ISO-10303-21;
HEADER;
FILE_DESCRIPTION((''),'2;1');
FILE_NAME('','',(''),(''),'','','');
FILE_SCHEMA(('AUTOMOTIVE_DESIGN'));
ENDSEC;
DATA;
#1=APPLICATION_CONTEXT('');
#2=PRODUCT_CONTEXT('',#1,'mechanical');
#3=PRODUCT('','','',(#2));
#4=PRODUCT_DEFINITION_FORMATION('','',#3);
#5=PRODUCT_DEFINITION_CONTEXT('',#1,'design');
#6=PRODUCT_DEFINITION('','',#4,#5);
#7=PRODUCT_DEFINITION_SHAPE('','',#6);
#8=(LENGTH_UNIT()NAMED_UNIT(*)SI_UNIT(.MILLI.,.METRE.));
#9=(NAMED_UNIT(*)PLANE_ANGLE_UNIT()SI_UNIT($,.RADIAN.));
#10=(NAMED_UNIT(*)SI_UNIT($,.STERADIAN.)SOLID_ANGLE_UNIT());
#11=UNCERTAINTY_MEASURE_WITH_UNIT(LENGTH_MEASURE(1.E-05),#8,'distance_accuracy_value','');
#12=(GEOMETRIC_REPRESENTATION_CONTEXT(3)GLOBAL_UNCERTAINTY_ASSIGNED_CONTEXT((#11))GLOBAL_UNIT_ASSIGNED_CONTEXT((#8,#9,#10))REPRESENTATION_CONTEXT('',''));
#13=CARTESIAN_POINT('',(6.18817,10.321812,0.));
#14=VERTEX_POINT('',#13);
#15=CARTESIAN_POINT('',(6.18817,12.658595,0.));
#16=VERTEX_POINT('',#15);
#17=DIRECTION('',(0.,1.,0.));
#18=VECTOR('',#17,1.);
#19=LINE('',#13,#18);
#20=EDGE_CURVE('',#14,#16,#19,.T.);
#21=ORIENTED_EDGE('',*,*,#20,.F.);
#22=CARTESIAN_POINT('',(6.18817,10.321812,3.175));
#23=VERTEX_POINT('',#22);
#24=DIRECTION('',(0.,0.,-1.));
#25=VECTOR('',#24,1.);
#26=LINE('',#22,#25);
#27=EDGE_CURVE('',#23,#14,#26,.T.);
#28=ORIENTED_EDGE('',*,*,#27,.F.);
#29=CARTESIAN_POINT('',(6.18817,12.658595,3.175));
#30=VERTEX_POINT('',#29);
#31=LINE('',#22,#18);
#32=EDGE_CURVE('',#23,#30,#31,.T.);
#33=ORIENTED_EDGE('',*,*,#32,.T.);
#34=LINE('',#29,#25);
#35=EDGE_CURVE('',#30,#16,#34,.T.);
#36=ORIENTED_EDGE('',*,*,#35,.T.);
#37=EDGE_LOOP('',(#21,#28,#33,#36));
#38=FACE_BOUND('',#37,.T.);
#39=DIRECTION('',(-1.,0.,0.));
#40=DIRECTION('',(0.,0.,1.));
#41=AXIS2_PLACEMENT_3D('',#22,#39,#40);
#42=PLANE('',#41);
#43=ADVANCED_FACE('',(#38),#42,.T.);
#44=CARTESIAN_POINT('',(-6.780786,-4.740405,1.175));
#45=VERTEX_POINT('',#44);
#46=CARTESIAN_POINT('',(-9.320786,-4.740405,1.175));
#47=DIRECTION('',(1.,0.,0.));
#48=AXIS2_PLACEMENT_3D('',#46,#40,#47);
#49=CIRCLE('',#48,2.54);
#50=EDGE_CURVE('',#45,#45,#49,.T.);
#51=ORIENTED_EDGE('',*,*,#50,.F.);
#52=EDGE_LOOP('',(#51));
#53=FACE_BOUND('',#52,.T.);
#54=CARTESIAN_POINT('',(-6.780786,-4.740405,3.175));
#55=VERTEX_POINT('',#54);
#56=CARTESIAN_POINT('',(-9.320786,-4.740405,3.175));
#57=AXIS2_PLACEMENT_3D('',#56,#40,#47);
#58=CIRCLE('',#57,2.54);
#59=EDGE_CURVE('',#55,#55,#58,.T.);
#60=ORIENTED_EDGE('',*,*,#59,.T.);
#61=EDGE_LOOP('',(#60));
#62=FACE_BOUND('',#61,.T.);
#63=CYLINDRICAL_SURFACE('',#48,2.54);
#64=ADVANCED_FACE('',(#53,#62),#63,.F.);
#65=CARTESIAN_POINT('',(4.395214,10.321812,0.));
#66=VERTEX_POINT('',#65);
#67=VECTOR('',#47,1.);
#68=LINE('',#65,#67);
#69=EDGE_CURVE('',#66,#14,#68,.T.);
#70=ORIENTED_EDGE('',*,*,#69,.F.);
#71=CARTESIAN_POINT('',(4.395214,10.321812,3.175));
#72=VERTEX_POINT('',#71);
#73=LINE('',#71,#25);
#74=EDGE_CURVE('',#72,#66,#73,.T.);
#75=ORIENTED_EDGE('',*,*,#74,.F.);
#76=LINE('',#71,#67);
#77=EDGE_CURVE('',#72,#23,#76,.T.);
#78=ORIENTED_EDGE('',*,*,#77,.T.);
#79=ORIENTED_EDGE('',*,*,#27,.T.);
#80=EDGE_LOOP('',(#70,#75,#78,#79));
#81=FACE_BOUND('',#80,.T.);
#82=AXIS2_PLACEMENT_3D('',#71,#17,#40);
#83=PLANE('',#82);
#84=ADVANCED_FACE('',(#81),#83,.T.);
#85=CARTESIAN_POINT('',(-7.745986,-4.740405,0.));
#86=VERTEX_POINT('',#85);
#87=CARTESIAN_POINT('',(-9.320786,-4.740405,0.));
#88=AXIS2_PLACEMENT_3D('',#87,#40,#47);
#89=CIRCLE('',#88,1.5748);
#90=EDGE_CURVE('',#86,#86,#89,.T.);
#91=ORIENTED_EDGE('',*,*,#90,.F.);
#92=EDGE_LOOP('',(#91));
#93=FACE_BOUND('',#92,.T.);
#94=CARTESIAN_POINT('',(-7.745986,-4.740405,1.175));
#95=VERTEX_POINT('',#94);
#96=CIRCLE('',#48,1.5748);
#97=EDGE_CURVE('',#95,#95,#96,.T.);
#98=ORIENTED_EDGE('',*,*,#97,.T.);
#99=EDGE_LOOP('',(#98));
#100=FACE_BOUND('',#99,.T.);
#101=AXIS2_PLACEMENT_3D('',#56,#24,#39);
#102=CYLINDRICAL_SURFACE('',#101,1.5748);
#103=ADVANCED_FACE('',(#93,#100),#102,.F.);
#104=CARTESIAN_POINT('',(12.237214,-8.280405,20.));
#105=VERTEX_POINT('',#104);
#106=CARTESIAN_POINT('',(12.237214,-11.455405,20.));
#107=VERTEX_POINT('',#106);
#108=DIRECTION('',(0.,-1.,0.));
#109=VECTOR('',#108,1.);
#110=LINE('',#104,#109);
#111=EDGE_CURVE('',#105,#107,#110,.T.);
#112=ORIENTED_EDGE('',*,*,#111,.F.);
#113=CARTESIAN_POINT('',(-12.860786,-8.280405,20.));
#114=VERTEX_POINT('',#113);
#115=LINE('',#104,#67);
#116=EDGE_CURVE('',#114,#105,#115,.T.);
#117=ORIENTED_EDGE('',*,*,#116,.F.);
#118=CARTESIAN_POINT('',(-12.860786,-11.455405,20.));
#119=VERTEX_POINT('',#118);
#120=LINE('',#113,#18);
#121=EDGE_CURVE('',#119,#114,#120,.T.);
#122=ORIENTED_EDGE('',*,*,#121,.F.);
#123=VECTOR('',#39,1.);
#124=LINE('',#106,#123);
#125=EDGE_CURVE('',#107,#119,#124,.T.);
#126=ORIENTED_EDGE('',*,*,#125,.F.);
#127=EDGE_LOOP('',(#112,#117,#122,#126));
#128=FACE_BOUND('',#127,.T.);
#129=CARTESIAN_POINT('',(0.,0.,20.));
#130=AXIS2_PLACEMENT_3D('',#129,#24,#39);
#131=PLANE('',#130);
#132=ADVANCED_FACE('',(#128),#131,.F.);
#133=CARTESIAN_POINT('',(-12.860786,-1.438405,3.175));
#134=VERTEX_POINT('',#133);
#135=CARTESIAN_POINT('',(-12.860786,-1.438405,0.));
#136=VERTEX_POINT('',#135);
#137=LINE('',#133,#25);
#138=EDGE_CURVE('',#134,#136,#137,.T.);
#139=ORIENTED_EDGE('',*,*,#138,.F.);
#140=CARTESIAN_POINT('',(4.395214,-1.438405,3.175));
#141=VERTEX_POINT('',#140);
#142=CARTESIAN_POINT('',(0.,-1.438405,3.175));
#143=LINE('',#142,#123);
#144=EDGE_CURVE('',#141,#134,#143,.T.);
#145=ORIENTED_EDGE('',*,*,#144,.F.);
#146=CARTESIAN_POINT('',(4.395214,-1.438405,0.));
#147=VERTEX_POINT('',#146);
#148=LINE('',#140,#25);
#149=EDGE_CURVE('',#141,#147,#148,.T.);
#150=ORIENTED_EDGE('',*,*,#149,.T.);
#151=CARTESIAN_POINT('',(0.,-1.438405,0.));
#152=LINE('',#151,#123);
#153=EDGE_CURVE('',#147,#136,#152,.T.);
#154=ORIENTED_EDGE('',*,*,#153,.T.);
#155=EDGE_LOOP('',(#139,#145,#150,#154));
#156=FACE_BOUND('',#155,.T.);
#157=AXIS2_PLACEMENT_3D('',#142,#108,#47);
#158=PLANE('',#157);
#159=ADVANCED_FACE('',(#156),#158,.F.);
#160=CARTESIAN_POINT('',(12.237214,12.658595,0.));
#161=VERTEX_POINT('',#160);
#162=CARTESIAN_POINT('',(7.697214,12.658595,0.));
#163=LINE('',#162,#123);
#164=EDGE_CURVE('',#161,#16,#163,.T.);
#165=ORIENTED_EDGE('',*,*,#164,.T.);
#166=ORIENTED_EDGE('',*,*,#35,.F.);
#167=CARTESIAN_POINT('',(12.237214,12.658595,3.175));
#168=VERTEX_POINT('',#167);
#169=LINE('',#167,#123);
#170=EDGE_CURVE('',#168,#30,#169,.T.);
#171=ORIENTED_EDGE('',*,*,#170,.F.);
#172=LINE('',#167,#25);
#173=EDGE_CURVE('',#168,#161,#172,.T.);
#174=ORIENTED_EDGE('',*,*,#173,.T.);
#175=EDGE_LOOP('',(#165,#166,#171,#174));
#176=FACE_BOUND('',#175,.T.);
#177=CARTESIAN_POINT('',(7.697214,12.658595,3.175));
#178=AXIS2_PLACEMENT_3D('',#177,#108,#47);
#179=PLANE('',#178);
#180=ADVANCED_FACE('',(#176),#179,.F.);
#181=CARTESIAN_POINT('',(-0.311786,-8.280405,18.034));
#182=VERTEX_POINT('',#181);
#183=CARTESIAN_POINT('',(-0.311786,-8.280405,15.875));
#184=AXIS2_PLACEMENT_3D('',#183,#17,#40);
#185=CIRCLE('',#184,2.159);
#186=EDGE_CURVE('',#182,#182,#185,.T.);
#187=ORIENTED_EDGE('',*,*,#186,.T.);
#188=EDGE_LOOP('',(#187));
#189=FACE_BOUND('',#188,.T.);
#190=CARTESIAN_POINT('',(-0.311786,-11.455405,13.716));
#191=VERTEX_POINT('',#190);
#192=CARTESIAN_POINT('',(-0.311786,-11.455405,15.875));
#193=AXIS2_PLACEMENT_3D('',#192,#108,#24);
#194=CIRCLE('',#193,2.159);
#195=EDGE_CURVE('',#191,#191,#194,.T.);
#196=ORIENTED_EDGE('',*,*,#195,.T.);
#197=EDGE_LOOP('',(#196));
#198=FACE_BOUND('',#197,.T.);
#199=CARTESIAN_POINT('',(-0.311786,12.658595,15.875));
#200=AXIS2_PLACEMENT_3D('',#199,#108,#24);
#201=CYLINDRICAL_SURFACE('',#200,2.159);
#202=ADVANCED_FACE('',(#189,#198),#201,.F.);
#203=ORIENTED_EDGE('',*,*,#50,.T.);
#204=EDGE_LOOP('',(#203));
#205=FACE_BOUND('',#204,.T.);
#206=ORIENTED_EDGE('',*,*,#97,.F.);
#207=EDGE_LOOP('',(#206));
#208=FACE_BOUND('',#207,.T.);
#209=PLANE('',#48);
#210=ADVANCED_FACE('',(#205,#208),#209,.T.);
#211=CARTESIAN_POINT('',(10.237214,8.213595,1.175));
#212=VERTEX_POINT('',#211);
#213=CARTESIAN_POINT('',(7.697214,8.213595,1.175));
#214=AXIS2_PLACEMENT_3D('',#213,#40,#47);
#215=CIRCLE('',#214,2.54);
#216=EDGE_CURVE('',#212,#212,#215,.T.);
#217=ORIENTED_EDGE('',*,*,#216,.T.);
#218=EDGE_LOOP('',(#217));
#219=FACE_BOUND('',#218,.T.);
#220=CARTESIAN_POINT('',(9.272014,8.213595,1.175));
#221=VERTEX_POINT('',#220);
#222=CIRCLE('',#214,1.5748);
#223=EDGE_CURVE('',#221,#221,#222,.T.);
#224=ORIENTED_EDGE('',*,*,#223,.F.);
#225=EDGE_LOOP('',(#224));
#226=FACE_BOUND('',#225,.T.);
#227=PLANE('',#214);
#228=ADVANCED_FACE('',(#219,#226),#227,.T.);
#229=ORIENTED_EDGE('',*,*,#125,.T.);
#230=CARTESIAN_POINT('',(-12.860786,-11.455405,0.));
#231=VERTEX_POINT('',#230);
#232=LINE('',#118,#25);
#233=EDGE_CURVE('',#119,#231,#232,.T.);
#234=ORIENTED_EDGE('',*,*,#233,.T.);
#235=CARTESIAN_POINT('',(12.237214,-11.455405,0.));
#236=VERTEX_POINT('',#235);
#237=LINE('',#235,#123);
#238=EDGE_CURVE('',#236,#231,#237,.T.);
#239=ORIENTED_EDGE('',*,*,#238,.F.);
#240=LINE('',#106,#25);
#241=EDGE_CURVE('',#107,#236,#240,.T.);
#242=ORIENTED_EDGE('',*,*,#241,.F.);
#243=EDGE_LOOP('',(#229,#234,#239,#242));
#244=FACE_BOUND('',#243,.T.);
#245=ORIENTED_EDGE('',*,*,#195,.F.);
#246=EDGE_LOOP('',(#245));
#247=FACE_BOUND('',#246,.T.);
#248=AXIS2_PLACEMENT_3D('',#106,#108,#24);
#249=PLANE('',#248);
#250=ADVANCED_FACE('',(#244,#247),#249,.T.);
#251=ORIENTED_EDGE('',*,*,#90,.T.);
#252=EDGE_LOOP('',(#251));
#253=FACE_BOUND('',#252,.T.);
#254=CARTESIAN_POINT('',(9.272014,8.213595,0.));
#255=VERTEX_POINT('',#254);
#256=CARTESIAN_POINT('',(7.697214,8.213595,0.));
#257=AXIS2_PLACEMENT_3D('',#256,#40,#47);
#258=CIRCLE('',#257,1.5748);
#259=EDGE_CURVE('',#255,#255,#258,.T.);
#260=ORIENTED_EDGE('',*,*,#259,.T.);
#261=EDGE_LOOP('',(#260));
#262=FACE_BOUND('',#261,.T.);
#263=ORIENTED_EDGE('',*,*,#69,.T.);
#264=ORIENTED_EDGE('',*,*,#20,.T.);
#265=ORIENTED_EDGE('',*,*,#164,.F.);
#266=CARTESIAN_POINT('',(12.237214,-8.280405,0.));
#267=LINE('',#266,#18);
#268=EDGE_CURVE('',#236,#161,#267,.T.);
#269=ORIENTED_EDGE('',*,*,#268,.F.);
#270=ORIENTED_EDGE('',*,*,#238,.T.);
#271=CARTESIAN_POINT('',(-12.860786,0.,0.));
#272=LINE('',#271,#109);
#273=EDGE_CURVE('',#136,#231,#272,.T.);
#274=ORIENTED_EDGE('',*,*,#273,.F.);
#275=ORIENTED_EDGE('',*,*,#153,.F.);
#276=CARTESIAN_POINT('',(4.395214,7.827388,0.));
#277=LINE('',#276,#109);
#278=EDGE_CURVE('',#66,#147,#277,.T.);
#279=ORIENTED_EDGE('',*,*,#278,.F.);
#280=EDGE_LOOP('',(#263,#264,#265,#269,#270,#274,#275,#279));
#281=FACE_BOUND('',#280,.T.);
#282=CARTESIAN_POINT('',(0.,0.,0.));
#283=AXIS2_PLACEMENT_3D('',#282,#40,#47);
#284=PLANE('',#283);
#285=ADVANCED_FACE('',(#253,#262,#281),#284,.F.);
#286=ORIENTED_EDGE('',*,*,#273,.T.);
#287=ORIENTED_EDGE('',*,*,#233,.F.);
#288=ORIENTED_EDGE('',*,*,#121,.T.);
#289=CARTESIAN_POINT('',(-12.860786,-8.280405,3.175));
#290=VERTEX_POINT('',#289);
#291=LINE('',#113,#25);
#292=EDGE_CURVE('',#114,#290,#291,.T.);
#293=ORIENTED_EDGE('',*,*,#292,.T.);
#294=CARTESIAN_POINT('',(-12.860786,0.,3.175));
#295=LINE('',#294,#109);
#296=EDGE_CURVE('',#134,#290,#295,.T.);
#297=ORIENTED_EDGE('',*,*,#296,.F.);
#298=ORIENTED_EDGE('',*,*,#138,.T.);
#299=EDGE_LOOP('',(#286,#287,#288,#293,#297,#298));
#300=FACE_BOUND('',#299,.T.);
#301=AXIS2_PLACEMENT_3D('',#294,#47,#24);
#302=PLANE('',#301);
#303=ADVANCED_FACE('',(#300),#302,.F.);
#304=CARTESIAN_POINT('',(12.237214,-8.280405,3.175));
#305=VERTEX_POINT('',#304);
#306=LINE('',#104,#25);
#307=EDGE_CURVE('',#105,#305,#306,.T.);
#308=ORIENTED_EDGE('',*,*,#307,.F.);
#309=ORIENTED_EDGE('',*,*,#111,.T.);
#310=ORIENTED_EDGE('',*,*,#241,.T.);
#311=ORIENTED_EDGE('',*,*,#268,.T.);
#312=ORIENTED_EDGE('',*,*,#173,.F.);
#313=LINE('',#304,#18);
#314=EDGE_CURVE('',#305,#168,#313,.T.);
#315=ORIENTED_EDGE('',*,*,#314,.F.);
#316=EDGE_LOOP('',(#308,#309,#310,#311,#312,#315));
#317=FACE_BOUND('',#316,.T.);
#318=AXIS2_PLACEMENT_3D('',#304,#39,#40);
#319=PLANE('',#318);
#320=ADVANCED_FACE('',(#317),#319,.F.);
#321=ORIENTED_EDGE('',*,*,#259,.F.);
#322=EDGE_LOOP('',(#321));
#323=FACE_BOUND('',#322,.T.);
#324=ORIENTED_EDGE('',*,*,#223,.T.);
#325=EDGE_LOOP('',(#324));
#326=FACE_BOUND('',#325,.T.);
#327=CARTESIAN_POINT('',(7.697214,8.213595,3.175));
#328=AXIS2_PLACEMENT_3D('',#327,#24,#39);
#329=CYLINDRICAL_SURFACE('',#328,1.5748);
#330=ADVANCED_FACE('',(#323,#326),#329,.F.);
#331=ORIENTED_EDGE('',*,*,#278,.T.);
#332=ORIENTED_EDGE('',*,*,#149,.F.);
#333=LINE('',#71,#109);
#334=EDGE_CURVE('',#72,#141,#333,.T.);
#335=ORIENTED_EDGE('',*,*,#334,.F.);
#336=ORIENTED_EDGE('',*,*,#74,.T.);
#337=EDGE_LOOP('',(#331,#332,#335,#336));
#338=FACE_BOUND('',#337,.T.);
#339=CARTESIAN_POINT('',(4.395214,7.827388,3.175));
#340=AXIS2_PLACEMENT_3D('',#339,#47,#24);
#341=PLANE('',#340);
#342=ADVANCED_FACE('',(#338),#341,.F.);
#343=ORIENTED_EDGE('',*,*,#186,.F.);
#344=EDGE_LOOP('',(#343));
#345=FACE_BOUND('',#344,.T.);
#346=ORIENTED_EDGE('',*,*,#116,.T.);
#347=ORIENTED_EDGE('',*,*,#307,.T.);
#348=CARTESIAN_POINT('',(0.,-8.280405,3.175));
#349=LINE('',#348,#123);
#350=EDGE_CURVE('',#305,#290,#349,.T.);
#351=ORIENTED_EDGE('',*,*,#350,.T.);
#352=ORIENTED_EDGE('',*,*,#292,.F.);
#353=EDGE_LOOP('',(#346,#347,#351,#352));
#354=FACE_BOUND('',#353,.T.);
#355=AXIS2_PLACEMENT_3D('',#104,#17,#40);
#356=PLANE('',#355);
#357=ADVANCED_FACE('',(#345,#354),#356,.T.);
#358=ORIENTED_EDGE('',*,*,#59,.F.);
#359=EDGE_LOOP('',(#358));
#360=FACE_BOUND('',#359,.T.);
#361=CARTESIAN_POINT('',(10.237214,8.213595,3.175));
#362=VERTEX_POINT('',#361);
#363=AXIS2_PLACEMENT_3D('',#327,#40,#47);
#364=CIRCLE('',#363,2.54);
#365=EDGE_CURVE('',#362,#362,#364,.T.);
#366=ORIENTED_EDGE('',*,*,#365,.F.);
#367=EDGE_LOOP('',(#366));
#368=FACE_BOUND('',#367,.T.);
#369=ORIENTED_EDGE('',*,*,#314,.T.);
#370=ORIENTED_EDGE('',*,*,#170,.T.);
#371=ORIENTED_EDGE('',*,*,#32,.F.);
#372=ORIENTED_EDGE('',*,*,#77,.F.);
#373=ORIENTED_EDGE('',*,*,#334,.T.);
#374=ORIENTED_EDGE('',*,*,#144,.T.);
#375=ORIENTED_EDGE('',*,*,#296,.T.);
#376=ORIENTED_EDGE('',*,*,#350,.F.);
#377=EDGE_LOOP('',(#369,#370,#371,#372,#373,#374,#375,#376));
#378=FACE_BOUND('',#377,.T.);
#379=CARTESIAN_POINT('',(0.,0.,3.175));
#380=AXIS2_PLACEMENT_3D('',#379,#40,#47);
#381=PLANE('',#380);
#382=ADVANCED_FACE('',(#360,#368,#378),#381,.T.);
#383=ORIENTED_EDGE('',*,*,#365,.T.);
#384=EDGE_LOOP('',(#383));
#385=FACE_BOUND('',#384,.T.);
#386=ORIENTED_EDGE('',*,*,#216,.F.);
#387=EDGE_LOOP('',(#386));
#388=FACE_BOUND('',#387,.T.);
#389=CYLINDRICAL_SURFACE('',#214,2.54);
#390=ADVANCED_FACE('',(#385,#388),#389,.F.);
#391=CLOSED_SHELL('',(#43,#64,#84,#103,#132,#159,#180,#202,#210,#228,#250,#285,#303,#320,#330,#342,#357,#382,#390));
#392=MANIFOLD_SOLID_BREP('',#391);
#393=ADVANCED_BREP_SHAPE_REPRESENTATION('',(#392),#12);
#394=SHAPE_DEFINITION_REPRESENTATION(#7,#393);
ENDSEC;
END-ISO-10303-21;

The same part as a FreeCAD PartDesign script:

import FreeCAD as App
import Part
import Sketcher

V = App.Vector
Q = App.Units.Quantity

doc = App.newDocument("Part")
body = doc.addObject("PartDesign::Body", "Body")

# Sketch on XY plane
sketch1 = doc.addObject("Sketcher::SketchObject", "Sketch")
body.addObject(sketch1)
sketch1.AttachmentSupport = (doc.XY_Plane, [""])
sketch1.MapMode = "FlatFace"
sketch1.addGeometry([
    Part.LineSegment(V(4.4, 10.3, 0), V(4.4, -1.4, 0)),  # 0
    Part.LineSegment(V(4.4, -1.4, 0), V(-12.9, -1.4, 0)),  # 1
    Part.LineSegment(V(-12.9, -1.4, 0), V(-12.9, -8.3, 0)),  # 2
    Part.LineSegment(V(-12.9, -8.3, 0), V(12.2, -8.3, 0)),  # 3
    Part.LineSegment(V(12.2, -8.3, 0), V(12.2, 12.7, 0)),  # 4
    Part.LineSegment(V(12.2, 12.7, 0), V(6.2, 12.7, 0)),  # 5
    Part.LineSegment(V(6.2, 12.7, 0), V(6.2, 10.3, 0)),  # 6
    Part.LineSegment(V(6.2, 10.3, 0), V(4.4, 10.3, 0)),  # 7
    Part.Circle(V(-9.3, -4.7, 0), V(0, 0, 1), 1.6),  # 8
    Part.Circle(V(7.7, 8.2, 0), V(0, 0, 1), 1.6),  # 9
], False)
sketch1.addConstraint([
    Sketcher.Constraint("Coincident", 0, 2, 1, 1),
    Sketcher.Constraint("Coincident", 1, 2, 2, 1),
    Sketcher.Constraint("Coincident", 2, 2, 3, 1),
    Sketcher.Constraint("Coincident", 3, 2, 4, 1),
    Sketcher.Constraint("Coincident", 4, 2, 5, 1),
    Sketcher.Constraint("Coincident", 5, 2, 6, 1),
    Sketcher.Constraint("Coincident", 6, 2, 7, 1),
    Sketcher.Constraint("Coincident", 7, 2, 0, 1),
    Sketcher.Constraint("Vertical", 0),
    Sketcher.Constraint("Horizontal", 1),
    Sketcher.Constraint("Vertical", 2),
    Sketcher.Constraint("Horizontal", 3),
    Sketcher.Constraint("Vertical", 4),
    Sketcher.Constraint("Horizontal", 5),
    Sketcher.Constraint("Vertical", 6),
    Sketcher.Constraint("Horizontal", 7),
    Sketcher.Constraint("Equal", 8, 9),
    Sketcher.Constraint("Diameter", 8, Q("0.124 in")),
    Sketcher.Constraint("DistanceX", 8, 3, 9, 3, Q("0.67 in")),
    Sketcher.Constraint("DistanceY", 8, 3, 9, 3, Q("0.51 in")),
    Sketcher.Constraint("DistanceX", 0, 2, 9, 3, Q("0.13 in")),
    Sketcher.Constraint("DistanceY", 0, 2, 9, 3, Q("0.38 in")),
    Sketcher.Constraint("DistanceY", 2, 2, -1, 1, Q("0.3260002 in")),
    Sketcher.Constraint("DistanceY", 9, 3, 4, 2, Q("0.175 in")),
    Sketcher.Constraint("DistanceX", 1, 2, 1, 1, Q("17.256 mm")),
    Sketcher.Constraint("DistanceX", 3, 1, 3, 2, Q("25.098 mm")),
    Sketcher.Constraint("DistanceY", 2, 2, 2, 1, Q("6.842 mm")),
    Sketcher.Constraint("DistanceX", 5, 2, 5, 1, Q("6.049043 mm")),
    Sketcher.Constraint("DistanceY", 0, 2, 0, 1, Q("11.760217 mm")),
    Sketcher.Constraint("DistanceX", -1, 1, 5, 2, Q("6.18817 mm")),
])
pad1 = doc.addObject("PartDesign::Pad", "Pad")
body.addObject(pad1)
pad1.Profile = sketch1
pad1.Length = Q("0.125 in")

# Sketch on XY plane
sketch2 = doc.addObject("Sketcher::SketchObject", "Sketch001")
body.addObject(sketch2)
sketch2.AttachmentSupport = (doc.XY_Plane, [""])
sketch2.MapMode = "FlatFace"
sketch2.addGeometry([
    Part.LineSegment(V(12.2, -8.3, 0), V(12.2, -11.5, 0)),
    Part.LineSegment(V(12.2, -11.5, 0), V(-12.9, -11.5, 0)),
    Part.LineSegment(V(-12.9, -11.5, 0), V(-12.9, -8.3, 0)),
    Part.LineSegment(V(-12.9, -8.3, 0), V(12.2, -8.3, 0)),
], False)
sketch2.addConstraint([
    Sketcher.Constraint("Coincident", 0, 2, 1, 1),
    Sketcher.Constraint("Coincident", 1, 2, 2, 1),
    Sketcher.Constraint("Coincident", 2, 2, 3, 1),
    Sketcher.Constraint("Coincident", 3, 2, 0, 1),
    Sketcher.Constraint("Vertical", 0),
    Sketcher.Constraint("Horizontal", 1),
    Sketcher.Constraint("Vertical", 2),
    Sketcher.Constraint("Horizontal", 3),
    Sketcher.Constraint("DistanceY", 0, 2, 0, 1, Q("0.125 in")),
    Sketcher.Constraint("DistanceY", 0, 2, -1, 1, Q("0.4510002 in")),
    Sketcher.Constraint("DistanceX", 1, 2, 1, 1, Q("25.098 mm")),
    Sketcher.Constraint("DistanceX", -1, 1, 0, 2, Q("12.237214 mm")),
])
pad2 = doc.addObject("PartDesign::Pad", "Pad001")
body.addObject(pad2)
pad2.Profile = sketch2
pad2.Length = 20

# Sketch on XZ plane
sketch3 = doc.addObject("Sketcher::SketchObject", "Sketch002")
body.addObject(sketch3)
sketch3.AttachmentSupport = (doc.XZ_Plane, [""])
sketch3.MapMode = "FlatFace"
sketch3.AttachmentOffset = App.Placement(V(0, 0, 0.4510002 * 25.4), App.Rotation())
sketch3.addGeometry(Part.Circle(V(-0.3, 15.9, 0), V(0, 0, 1), 2.2), False)
sketch3.addConstraint([
    Sketcher.Constraint("Diameter", 0, Q("0.17 in")),
    Sketcher.Constraint("DistanceY", -1, 1, 0, 3, Q("0.625 in")),
    Sketcher.Constraint("DistanceX", 0, 3, -1, 1, Q("0.311786 mm")),
])
pocket1 = doc.addObject("PartDesign::Pocket", "Pocket")
body.addObject(pocket1)
pocket1.Profile = sketch3
pocket1.Type = "ThroughAll"

# Sketch on XY plane
sketch4 = doc.addObject("Sketcher::SketchObject", "Sketch003")
body.addObject(sketch4)
sketch4.AttachmentSupport = (doc.XY_Plane, [""])
sketch4.MapMode = "FlatFace"
sketch4.AttachmentOffset = App.Placement(V(0, 0, 0.125 * 25.4), App.Rotation())
sketch4.addGeometry([
    Part.Circle(V(7.7, 8.2, 0), V(0, 0, 1), 2.5),
    Part.Circle(V(-9.3, -4.7, 0), V(0, 0, 1), 2.5),
], False)
sketch4.addConstraint([
    Sketcher.Constraint("Equal", 0, 1),
    Sketcher.Constraint("Diameter", 0, Q("0.2 in")),
    Sketcher.Constraint("DistanceX", 1, 3, 0, 3, Q("0.67 in")),
    Sketcher.Constraint("DistanceY", 1, 3, 0, 3, Q("0.51 in")),
    Sketcher.Constraint("DistanceX", -1, 1, 0, 3, Q("7.697214 mm")),
    Sketcher.Constraint("DistanceY", -1, 1, 0, 3, Q("8.213595 mm")),
])
pocket2 = doc.addObject("PartDesign::Pocket", "Pocket001")
body.addObject(pocket2)
pocket2.Profile = sketch4
pocket2.Length = 2

doc.recompute()
